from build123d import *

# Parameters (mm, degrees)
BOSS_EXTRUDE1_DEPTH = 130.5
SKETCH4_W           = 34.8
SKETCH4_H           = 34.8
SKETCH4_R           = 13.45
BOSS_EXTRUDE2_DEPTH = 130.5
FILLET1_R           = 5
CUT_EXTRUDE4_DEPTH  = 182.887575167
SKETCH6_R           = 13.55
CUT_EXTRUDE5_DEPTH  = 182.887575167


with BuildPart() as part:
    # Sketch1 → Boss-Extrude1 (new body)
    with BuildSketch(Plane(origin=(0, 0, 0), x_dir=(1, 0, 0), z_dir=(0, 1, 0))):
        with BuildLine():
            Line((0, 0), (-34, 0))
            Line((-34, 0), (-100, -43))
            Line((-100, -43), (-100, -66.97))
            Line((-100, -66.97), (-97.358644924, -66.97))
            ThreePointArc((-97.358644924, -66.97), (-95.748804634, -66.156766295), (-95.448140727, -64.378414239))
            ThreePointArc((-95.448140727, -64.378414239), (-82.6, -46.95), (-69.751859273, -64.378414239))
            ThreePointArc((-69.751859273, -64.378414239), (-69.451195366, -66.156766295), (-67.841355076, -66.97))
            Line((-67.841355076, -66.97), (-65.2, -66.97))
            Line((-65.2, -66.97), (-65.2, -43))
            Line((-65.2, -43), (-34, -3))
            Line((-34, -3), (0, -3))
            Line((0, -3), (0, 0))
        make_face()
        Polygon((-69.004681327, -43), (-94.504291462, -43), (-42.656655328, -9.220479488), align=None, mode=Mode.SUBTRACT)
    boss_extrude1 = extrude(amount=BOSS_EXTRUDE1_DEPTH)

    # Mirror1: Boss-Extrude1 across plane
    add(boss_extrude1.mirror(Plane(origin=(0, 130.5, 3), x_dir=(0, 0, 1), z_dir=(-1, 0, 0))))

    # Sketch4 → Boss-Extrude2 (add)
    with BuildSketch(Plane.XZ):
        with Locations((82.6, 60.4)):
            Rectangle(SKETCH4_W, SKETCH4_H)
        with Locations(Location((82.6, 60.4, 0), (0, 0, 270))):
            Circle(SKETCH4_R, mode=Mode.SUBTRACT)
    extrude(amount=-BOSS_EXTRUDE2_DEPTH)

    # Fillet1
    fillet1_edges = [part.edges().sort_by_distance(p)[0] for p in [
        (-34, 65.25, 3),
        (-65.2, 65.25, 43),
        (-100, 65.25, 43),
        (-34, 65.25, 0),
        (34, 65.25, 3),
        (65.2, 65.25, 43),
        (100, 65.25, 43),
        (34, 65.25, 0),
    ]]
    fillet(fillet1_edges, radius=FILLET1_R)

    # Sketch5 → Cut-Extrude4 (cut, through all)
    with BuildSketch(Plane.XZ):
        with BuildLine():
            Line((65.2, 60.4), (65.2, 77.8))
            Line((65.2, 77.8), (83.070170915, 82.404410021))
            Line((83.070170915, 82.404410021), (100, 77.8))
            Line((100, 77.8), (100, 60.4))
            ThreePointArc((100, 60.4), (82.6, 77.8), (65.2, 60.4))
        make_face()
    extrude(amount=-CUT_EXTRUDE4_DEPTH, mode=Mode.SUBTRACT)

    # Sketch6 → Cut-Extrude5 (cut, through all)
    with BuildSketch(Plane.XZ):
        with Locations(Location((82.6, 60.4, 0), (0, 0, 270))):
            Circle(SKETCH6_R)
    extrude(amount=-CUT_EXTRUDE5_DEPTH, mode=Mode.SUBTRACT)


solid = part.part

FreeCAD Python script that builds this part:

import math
import FreeCAD as App
import Part
import Sketcher

V = App.Vector


def edges_at(feature, points):
    """Names of the edges that pass closest to the given points."""
    edges = feature.Shape.Edges
    near = lambda p: min(range(len(edges)), key=lambda i: edges[i].distToShape(Part.Vertex(*p))[0])
    return sorted({f"Edge{near(p) + 1}" for p in points})


def add_polygon(sketch, points):
    """Adds a closed chain of lines whose ends are joined by coincident constraints."""
    first, n = sketch.GeometryCount, len(points)
    for a, b in zip(points, points[1:] + points[:1]):
        sketch.addGeometry(Part.LineSegment(App.Vector(*a, 0), App.Vector(*b, 0)), False)
    for i in range(n):
        sketch.addConstraint(Sketcher.Constraint("Coincident", first + i, 2, first + (i + 1) % n, 1))

doc = App.newDocument("Part")
body = doc.addObject("PartDesign::Body", "Body")

# Sketch on XZ plane
sketch1 = body.newObject("Sketcher::SketchObject", "Sketch")
sketch1.AttachmentSupport = (doc.getObject("XZ_Plane"), [""])
sketch1.MapMode = "FlatFace"
sketch1.addGeometry(Part.LineSegment(V(0, 0, 0), V(-34, 0, 0)), False)  # 0
sketch1.addGeometry(Part.LineSegment(V(-34, 0, 0), V(-100, 43, 0)), False)  # 1
sketch1.addGeometry(Part.LineSegment(V(-100, 43, 0), V(-100, 67, 0)), False)  # 2
sketch1.addGeometry(Part.LineSegment(V(-100, 67, 0), V(-97.4, 67, 0)), False)  # 3
sketch1.addGeometry(Part.ArcOfCircle(Part.Circle(V(-97.4, 65, 0), V(0, 0, 1), 2), math.radians(-17), math.radians(90)), False)  # 4
sketch1.addGeometry(Part.ArcOfCircle(Part.Circle(V(-82.6, 60.4, 0), V(0, 0, 1), 13.4), math.radians(163), math.radians(377)), False)  # 5
sketch1.addGeometry(Part.ArcOfCircle(Part.Circle(V(-67.8, 65, 0), V(0, 0, 1), 2), math.radians(90), math.radians(197)), False)  # 6
sketch1.addGeometry(Part.LineSegment(V(-67.8, 67, 0), V(-65.2, 67, 0)), False)  # 7
sketch1.addGeometry(Part.LineSegment(V(-65.2, 67, 0), V(-65.2, 43, 0)), False)  # 8
sketch1.addGeometry(Part.LineSegment(V(-65.2, 43, 0), V(-34, 3, 0)), False)  # 9
sketch1.addGeometry(Part.LineSegment(V(-34, 3, 0), V(0, 3, 0)), False)  # 10
sketch1.addGeometry(Part.LineSegment(V(0, 3, 0), V(0, 0, 0)), False)  # 11
add_polygon(sketch1, [(-42.7, 9.2), (-69, 43), (-94.5, 43)])  # lines 12-14
sketch1.addConstraint(Sketcher.Constraint("Coincident", 0, 2, 1, 1))
sketch1.addConstraint(Sketcher.Constraint("Coincident", 1, 2, 2, 1))
sketch1.addConstraint(Sketcher.Constraint("Coincident", 2, 2, 3, 1))
sketch1.addConstraint(Sketcher.Constraint("Tangent", 3, 2, 4, 2))
sketch1.addConstraint(Sketcher.Constraint("Tangent", 4, 1, 5, 1))
sketch1.addConstraint(Sketcher.Constraint("Tangent", 5, 2, 6, 2))
sketch1.addConstraint(Sketcher.Constraint("Tangent", 6, 1, 7, 1))
sketch1.addConstraint(Sketcher.Constraint("Coincident", 7, 2, 8, 1))
sketch1.addConstraint(Sketcher.Constraint("Coincident", 8, 2, 9, 1))
sketch1.addConstraint(Sketcher.Constraint("Coincident", 9, 2, 10, 1))
sketch1.addConstraint(Sketcher.Constraint("Coincident", 10, 2, 11, 1))
sketch1.addConstraint(Sketcher.Constraint("Coincident", 11, 2, 0, 1))
sketch1.addConstraint(Sketcher.Constraint("Horizontal", 0))
sketch1.addConstraint(Sketcher.Constraint("Vertical", 2))
sketch1.addConstraint(Sketcher.Constraint("Horizontal", 3))
sketch1.addConstraint(Sketcher.Constraint("Horizontal", 7))
sketch1.addConstraint(Sketcher.Constraint("Vertical", 8))
sketch1.addConstraint(Sketcher.Constraint("Horizontal", 10))
sketch1.addConstraint(Sketcher.Constraint("Vertical", 11))
sketch1.addConstraint(Sketcher.Constraint("Horizontal", 13))
sketch1.addConstraint(Sketcher.Constraint("Coincident", 11, 2, -1, 1))
sketch1.addConstraint(Sketcher.Constraint("Equal", 4, 6))
sketch1.addConstraint(Sketcher.Constraint("Parallel", 9, 12))
sketch1.addConstraint(Sketcher.Constraint("Parallel", 1, 14))
sketch1.addConstraint(Sketcher.Constraint("Horizontal", 4, 3, 6, 3))
sketch1.addConstraint(Sketcher.Constraint("Horizontal", 1, 2, 8, 2))
sketch1.addConstraint(Sketcher.Constraint("Horizontal", 8, 2, 12, 2))
sketch1.addConstraint(Sketcher.Constraint("Vertical", 0, 2, 9, 2))
sketch1.addConstraint(Sketcher.Constraint("Equal", 3, 7))
sketch1.addConstraint(Sketcher.Constraint("Radius", 4, 2.0))
sketch1.addConstraint(Sketcher.Constraint("DistanceX", 0, 2, 0, 1, 34.0))
sketch1.addConstraint(Sketcher.Constraint("DistanceY", 11, 2, 11, 1, 3.0))
sketch1.addConstraint(Sketcher.Constraint("Radius", 5, 13.45))
sketch1.addConstraint(Sketcher.Constraint("DistanceX", 1, 2, -1, 1, 100.0))
sketch1.addConstraint(Sketcher.Constraint("DistanceY", -1, 1, 1, 2, 43.0))
sketch1.addConstraint(Sketcher.Constraint("DistanceY", 2, 1, 2, 2, 23.97))
sketch1.addConstraint(Sketcher.Constraint("DistanceX", 5, 3, -1, 1, 82.6))
sketch1.addConstraint(Sketcher.Constraint("DistanceY", -1, 1, 5, 3, 60.4))
sketch1.addConstraint(Sketcher.Constraint("Distance", 14, 61.8808))
sketch1.addConstraint(Sketcher.Constraint("DistanceX", 12, 2, -1, 1, 69.004681))
pad1 = body.newObject("PartDesign::Pad", "Pad")
pad1.Profile = sketch1
pad1.Length = 130.5
pad1.Reversed = True
doc.recompute()

mirrored = body.newObject("PartDesign::Mirrored", "Mirrored")
mirrored.Originals = [pad1]
mirrored.MirrorPlane = (doc.getObject("YZ_Plane"), [""])
body.Tip = mirrored

# Sketch on XZ plane
sketch2 = body.newObject("Sketcher::SketchObject", "Sketch001")
sketch2.AttachmentSupport = (doc.getObject("XZ_Plane"), [""])
sketch2.MapMode = "FlatFace"
add_polygon(sketch2, [(65, 78), (65, 43), (100, 43), (100, 78)])  # lines 0-3
sketch2.addGeometry(Part.Circle(V(83, 60, 0), V(0, 0, 1), 13), False)  # 4
sketch2.addConstraint(Sketcher.Constraint("Vertical", 0))
sketch2.addConstraint(Sketcher.Constraint("Horizontal", 1))
sketch2.addConstraint(Sketcher.Constraint("Vertical", 2))
sketch2.addConstraint(Sketcher.Constraint("Horizontal", 3))
sketch2.addConstraint(Sketcher.Constraint("Equal", 3, 0))
sketch2.addConstraint(Sketcher.Constraint("Diameter", 4, 26.9))
sketch2.addConstraint(Sketcher.Constraint("DistanceX", 1, 1, 1, 2, 34.8))
sketch2.addConstraint(Sketcher.Constraint("DistanceY", -1, 1, 0, 2, 43.0))
sketch2.addConstraint(Sketcher.Constraint("DistanceX", -1, 1, 1, 2, 100.0))
sketch2.addConstraint(Sketcher.Constraint("DistanceX", -1, 1, 4, 3, 82.6))
sketch2.addConstraint(Sketcher.Constraint("DistanceY", -1, 1, 4, 3, 60.4))
pad2 = body.newObject("PartDesign::Pad", "Pad001")
pad2.Profile = sketch2
pad2.Length = 130.5
pad2.Reversed = True
doc.recompute()

fillet = body.newObject("PartDesign::Fillet", "Fillet")
fillet.Base = (pad2, edges_at(pad2, [
    (-34, 65.25, 3),
    (-65.2, 65.25, 43),
    (-100, 65.25, 43),
    (-34, 65.25, 0),
    (34, 65.25, 3),
    (65.2, 65.25, 43),
    (100, 65.25, 43),
    (34, 65.25, 0),
]))
fillet.Radius = 5

# Sketch on XZ plane
sketch3 = body.newObject("Sketcher::SketchObject", "Sketch002")
sketch3.AttachmentSupport = (doc.getObject("XZ_Plane"), [""])
sketch3.MapMode = "FlatFace"
sketch3.addGeometry(Part.LineSegment(V(65, 78, 0), V(65, 60, 0)), False)
sketch3.addGeometry(Part.ArcOfCircle(Part.Circle(V(83, 60, 0), V(0, 0, 1), 17), math.radians(0), math.radians(180)), False)
sketch3.addGeometry(Part.LineSegment(V(100, 60, 0), V(100, 78, 0)), False)
sketch3.addGeometry(Part.LineSegment(V(100, 78, 0), V(83, 82, 0)), False)
sketch3.addGeometry(Part.LineSegment(V(83, 82, 0), V(65, 78, 0)), False)
sketch3.addConstraint(Sketcher.Constraint("Tangent", 0, 2, 1, 2))
sketch3.addConstraint(Sketcher.Constraint("Tangent", 1, 1, 2, 1))
sketch3.addConstraint(Sketcher.Constraint("Coincident", 2, 2, 3, 1))
sketch3.addConstraint(Sketcher.Constraint("Coincident", 3, 2, 4, 1))
sketch3.addConstraint(Sketcher.Constraint("Coincident", 4, 2, 0, 1))
sketch3.addConstraint(Sketcher.Constraint("Vertical", 0))
sketch3.addConstraint(Sketcher.Constraint("Vertical", 2))
sketch3.addConstraint(Sketcher.Constraint("Horizontal", 2, 2, 4, 2))
sketch3.addConstraint(Sketcher.Constraint("Radius", 1, 17.4))
sketch3.addConstraint(Sketcher.Constraint("DistanceY", 0, 2, 0, 1, 17.4))
sketch3.addConstraint(Sketcher.Constraint("DistanceX", -1, 1, 1, 1, 100.0))
sketch3.addConstraint(Sketcher.Constraint("DistanceY", -1, 1, 1, 3, 60.4))
sketch3.addConstraint(Sketcher.Constraint("Distance", 3, 17.544791))
sketch3.addConstraint(Sketcher.Constraint("DistanceX", -1, 1, 3, 2, 83.070171))
pocket1 = body.newObject("PartDesign::Pocket", "Pocket")
pocket1.Profile = sketch3
pocket1.Type = "ThroughAll"

# Sketch on XZ plane
sketch4 = body.newObject("Sketcher::SketchObject", "Sketch003")
sketch4.AttachmentSupport = (doc.getObject("XZ_Plane"), [""])
sketch4.MapMode = "FlatFace"
sketch4.addGeometry(Part.Circle(V(83, 60, 0), V(0, 0, 1), 14), False)
sketch4.addConstraint(Sketcher.Constraint("Diameter", 0, 27.1))
sketch4.addConstraint(Sketcher.Constraint("DistanceX", -1, 1, 0, 3, 82.6))
sketch4.addConstraint(Sketcher.Constraint("DistanceY", -1, 1, 0, 3, 60.4))
pocket2 = body.newObject("PartDesign::Pocket", "Pocket001")
pocket2.Profile = sketch4
pocket2.Type = "ThroughAll"

doc.recompute()
